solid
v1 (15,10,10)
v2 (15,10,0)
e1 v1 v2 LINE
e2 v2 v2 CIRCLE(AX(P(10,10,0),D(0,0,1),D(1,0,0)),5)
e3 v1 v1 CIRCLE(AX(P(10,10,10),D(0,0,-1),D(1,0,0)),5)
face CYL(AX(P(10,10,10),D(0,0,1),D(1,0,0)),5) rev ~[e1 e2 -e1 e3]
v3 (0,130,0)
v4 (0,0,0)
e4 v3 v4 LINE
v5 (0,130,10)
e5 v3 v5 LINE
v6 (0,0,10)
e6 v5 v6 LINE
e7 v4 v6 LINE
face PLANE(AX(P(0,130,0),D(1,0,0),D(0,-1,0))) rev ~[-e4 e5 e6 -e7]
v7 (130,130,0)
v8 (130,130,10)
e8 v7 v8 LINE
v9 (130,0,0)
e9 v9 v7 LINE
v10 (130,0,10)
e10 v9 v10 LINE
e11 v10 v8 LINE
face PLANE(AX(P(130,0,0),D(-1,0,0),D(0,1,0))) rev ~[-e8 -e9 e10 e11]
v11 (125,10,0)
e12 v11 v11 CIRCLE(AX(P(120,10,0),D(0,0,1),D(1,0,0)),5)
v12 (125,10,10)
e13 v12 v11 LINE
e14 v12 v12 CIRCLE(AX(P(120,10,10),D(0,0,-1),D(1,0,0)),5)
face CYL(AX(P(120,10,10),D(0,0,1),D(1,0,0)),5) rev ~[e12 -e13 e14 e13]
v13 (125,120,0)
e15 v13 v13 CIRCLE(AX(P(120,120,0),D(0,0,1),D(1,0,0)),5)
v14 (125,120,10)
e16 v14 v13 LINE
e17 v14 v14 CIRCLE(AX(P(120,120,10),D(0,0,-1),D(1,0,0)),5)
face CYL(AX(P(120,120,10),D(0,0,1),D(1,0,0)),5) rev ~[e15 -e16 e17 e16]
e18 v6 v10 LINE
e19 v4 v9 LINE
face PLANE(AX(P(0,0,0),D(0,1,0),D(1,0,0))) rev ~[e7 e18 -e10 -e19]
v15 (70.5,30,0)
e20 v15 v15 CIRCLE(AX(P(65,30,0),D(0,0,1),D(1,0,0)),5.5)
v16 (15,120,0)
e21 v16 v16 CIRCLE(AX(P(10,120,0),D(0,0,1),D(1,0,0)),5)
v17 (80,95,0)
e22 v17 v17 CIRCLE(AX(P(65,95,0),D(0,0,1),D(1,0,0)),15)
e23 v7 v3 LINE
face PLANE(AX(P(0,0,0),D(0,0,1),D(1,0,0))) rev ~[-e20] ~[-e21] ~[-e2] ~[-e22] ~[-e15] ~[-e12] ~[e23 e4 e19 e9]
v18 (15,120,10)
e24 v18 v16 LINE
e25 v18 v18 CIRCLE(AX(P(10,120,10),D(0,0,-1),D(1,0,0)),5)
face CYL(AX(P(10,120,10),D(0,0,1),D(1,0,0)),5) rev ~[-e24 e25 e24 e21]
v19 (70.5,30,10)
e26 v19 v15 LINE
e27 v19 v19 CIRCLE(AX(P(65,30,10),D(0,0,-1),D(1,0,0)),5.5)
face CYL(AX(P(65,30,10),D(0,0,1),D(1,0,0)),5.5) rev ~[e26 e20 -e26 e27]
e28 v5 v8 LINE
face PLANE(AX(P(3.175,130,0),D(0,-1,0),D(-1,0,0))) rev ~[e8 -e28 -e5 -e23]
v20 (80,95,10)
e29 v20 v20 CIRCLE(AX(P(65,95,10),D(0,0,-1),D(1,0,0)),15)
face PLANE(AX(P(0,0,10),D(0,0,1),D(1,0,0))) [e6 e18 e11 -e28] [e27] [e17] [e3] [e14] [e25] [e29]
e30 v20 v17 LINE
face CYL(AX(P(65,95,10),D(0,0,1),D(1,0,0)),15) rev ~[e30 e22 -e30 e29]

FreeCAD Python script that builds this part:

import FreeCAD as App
import Part
import Sketcher

V = App.Vector
Q = App.Units.Quantity

doc = App.newDocument("Part")
params = doc.addObject("Spreadsheet::Sheet", "Params")
for row, (alias, value) in enumerate([
    ("sketch1_width", "130 mm"),
    ("pad1_length", "10 mm"),
    ("sketch2_diameter", "10 mm"),
    ("sketch3_diameter", "11 mm"),
    ("sketch3_diameter2", "30 mm"),
    ("pocket2_length", "10 mm"),
], start=1):
    params.set(f"A{row}", alias)
    params.set(f"B{row}", "=" + value)
    params.setAlias(f"B{row}", alias)

body = doc.addObject("PartDesign::Body", "Body")

sketch1 = doc.addObject("Sketcher::SketchObject", "Sketch")
body.addObject(sketch1)
sketch1.AttachmentSupport = (doc.XY_Plane, [""])
sketch1.MapMode = "FlatFace"
sketch1.addGeometry(Part.LineSegment(V(0, 130, 0), V(0, 0, 0)), False)
sketch1.addGeometry(Part.LineSegment(V(0, 0, 0), V(130, 0, 0)), False)
sketch1.addGeometry(Part.LineSegment(V(130, 0, 0), V(130, 130, 0)), False)
sketch1.addGeometry(Part.LineSegment(V(130, 130, 0), V(0, 130, 0)), False)
sketch1.addConstraint(Sketcher.Constraint("Coincident", 0, 2, 1, 1))
sketch1.addConstraint(Sketcher.Constraint("Coincident", 1, 2, 2, 1))
sketch1.addConstraint(Sketcher.Constraint("Coincident", 2, 2, 3, 1))
sketch1.addConstraint(Sketcher.Constraint("Coincident", 3, 2, 0, 1))
sketch1.addConstraint(Sketcher.Constraint("Vertical", 0))
sketch1.addConstraint(Sketcher.Constraint("Horizontal", 1))
sketch1.addConstraint(Sketcher.Constraint("Vertical", 2))
sketch1.addConstraint(Sketcher.Constraint("Horizontal", 3))
sketch1.addConstraint(Sketcher.Constraint("Coincident", 0, 2, -1, 1))
sketch1.addConstraint(Sketcher.Constraint("Equal", 3, 0))
sketch1.addConstraint(Sketcher.Constraint("DistanceX", 1, 1, 1, 2, Q("130 mm")))
sketch1.setExpression("Constraints[10]", "Params.sketch1_width")
pad1 = doc.addObject("PartDesign::Pad", "Pad")
body.addObject(pad1)
pad1.Profile = sketch1
pad1.setExpression("Length", "Params.pad1_length")

sketch2 = doc.addObject("Sketcher::SketchObject", "Sketch001")
body.addObject(sketch2)
sketch2.AttachmentSupport = (doc.XY_Plane, [""])
sketch2.MapMode = "FlatFace"
sketch2.AttachmentOffset = App.Placement(V(0, 0, 10), App.Rotation())
sketch2.addGeometry(Part.Circle(V(10, 120, 0), V(0, 0, 1), 5), False)
sketch2.addGeometry(Part.Circle(V(120, 120, 0), V(0, 0, 1), 5), False)
sketch2.addGeometry(Part.Circle(V(10, 10, 0), V(0, 0, 1), 5), False)
sketch2.addGeometry(Part.Circle(V(120, 10, 0), V(0, 0, 1), 5), False)
sketch2.addConstraint(Sketcher.Constraint("Equal", 0, 1))
sketch2.addConstraint(Sketcher.Constraint("Equal", 1, 2))
sketch2.addConstraint(Sketcher.Constraint("Equal", 2, 3))
sketch2.addConstraint(Sketcher.Constraint("Horizontal", 0, 3, 1, 3))
sketch2.addConstraint(Sketcher.Constraint("Horizontal", 2, 3, 3, 3))
sketch2.addConstraint(Sketcher.Constraint("Vertical", 0, 3, 2, 3))
sketch2.addConstraint(Sketcher.Constraint("Vertical", 1, 3, 3, 3))
sketch2.addConstraint(Sketcher.Constraint("Diameter", 0, Q("10 mm")))
sketch2.addConstraint(Sketcher.Constraint("DistanceX", -1, 1, 0, 3, Q("10 mm")))
sketch2.addConstraint(Sketcher.Constraint("DistanceY", -1, 1, 0, 3, Q("120 mm")))
sketch2.addConstraint(Sketcher.Constraint("DistanceX", -1, 1, 1, 3, Q("120 mm")))
sketch2.addConstraint(Sketcher.Constraint("DistanceY", -1, 1, 2, 3, Q("10 mm")))
sketch2.setExpression("Constraints[7]", "Params.sketch2_diameter")
pocket1 = doc.addObject("PartDesign::Pocket", "Pocket")
body.addObject(pocket1)
pocket1.Profile = sketch2
pocket1.Type = "ThroughAll"

sketch3 = doc.addObject("Sketcher::SketchObject", "Sketch002")
body.addObject(sketch3)
sketch3.AttachmentSupport = (doc.XY_Plane, [""])
sketch3.MapMode = "FlatFace"
sketch3.AttachmentOffset = App.Placement(V(0, 0, 10), App.Rotation())
sketch3.addGeometry(Part.Circle(V(65, 30, 0), V(0, 0, 1), 5.5), False)
sketch3.addGeometry(Part.Circle(V(65, 95, 0), V(0, 0, 1), 15), False)
sketch3.addConstraint(Sketcher.Constraint("Vertical", 0, 3, 1, 3))
sketch3.addConstraint(Sketcher.Constraint("Diameter", 0, Q("11 mm")))
sketch3.addConstraint(Sketcher.Constraint("Diameter", 1, Q("30 mm")))
sketch3.addConstraint(Sketcher.Constraint("DistanceX", -1, 1, 0, 3, Q("65 mm")))
sketch3.addConstraint(Sketcher.Constraint("DistanceY", -1, 1, 0, 3, Q("30 mm")))
sketch3.addConstraint(Sketcher.Constraint("DistanceY", 0, 3, 1, 3, Q("65 mm")))
sketch3.setExpression("Constraints[1]", "Params.sketch3_diameter")
sketch3.setExpression("Constraints[2]", "Params.sketch3_diameter2")
pocket2 = doc.addObject("PartDesign::Pocket", "Pocket001")
body.addObject(pocket2)
pocket2.Profile = sketch3
pocket2.setExpression("Length", "Params.pocket2_length")

doc.recompute()
